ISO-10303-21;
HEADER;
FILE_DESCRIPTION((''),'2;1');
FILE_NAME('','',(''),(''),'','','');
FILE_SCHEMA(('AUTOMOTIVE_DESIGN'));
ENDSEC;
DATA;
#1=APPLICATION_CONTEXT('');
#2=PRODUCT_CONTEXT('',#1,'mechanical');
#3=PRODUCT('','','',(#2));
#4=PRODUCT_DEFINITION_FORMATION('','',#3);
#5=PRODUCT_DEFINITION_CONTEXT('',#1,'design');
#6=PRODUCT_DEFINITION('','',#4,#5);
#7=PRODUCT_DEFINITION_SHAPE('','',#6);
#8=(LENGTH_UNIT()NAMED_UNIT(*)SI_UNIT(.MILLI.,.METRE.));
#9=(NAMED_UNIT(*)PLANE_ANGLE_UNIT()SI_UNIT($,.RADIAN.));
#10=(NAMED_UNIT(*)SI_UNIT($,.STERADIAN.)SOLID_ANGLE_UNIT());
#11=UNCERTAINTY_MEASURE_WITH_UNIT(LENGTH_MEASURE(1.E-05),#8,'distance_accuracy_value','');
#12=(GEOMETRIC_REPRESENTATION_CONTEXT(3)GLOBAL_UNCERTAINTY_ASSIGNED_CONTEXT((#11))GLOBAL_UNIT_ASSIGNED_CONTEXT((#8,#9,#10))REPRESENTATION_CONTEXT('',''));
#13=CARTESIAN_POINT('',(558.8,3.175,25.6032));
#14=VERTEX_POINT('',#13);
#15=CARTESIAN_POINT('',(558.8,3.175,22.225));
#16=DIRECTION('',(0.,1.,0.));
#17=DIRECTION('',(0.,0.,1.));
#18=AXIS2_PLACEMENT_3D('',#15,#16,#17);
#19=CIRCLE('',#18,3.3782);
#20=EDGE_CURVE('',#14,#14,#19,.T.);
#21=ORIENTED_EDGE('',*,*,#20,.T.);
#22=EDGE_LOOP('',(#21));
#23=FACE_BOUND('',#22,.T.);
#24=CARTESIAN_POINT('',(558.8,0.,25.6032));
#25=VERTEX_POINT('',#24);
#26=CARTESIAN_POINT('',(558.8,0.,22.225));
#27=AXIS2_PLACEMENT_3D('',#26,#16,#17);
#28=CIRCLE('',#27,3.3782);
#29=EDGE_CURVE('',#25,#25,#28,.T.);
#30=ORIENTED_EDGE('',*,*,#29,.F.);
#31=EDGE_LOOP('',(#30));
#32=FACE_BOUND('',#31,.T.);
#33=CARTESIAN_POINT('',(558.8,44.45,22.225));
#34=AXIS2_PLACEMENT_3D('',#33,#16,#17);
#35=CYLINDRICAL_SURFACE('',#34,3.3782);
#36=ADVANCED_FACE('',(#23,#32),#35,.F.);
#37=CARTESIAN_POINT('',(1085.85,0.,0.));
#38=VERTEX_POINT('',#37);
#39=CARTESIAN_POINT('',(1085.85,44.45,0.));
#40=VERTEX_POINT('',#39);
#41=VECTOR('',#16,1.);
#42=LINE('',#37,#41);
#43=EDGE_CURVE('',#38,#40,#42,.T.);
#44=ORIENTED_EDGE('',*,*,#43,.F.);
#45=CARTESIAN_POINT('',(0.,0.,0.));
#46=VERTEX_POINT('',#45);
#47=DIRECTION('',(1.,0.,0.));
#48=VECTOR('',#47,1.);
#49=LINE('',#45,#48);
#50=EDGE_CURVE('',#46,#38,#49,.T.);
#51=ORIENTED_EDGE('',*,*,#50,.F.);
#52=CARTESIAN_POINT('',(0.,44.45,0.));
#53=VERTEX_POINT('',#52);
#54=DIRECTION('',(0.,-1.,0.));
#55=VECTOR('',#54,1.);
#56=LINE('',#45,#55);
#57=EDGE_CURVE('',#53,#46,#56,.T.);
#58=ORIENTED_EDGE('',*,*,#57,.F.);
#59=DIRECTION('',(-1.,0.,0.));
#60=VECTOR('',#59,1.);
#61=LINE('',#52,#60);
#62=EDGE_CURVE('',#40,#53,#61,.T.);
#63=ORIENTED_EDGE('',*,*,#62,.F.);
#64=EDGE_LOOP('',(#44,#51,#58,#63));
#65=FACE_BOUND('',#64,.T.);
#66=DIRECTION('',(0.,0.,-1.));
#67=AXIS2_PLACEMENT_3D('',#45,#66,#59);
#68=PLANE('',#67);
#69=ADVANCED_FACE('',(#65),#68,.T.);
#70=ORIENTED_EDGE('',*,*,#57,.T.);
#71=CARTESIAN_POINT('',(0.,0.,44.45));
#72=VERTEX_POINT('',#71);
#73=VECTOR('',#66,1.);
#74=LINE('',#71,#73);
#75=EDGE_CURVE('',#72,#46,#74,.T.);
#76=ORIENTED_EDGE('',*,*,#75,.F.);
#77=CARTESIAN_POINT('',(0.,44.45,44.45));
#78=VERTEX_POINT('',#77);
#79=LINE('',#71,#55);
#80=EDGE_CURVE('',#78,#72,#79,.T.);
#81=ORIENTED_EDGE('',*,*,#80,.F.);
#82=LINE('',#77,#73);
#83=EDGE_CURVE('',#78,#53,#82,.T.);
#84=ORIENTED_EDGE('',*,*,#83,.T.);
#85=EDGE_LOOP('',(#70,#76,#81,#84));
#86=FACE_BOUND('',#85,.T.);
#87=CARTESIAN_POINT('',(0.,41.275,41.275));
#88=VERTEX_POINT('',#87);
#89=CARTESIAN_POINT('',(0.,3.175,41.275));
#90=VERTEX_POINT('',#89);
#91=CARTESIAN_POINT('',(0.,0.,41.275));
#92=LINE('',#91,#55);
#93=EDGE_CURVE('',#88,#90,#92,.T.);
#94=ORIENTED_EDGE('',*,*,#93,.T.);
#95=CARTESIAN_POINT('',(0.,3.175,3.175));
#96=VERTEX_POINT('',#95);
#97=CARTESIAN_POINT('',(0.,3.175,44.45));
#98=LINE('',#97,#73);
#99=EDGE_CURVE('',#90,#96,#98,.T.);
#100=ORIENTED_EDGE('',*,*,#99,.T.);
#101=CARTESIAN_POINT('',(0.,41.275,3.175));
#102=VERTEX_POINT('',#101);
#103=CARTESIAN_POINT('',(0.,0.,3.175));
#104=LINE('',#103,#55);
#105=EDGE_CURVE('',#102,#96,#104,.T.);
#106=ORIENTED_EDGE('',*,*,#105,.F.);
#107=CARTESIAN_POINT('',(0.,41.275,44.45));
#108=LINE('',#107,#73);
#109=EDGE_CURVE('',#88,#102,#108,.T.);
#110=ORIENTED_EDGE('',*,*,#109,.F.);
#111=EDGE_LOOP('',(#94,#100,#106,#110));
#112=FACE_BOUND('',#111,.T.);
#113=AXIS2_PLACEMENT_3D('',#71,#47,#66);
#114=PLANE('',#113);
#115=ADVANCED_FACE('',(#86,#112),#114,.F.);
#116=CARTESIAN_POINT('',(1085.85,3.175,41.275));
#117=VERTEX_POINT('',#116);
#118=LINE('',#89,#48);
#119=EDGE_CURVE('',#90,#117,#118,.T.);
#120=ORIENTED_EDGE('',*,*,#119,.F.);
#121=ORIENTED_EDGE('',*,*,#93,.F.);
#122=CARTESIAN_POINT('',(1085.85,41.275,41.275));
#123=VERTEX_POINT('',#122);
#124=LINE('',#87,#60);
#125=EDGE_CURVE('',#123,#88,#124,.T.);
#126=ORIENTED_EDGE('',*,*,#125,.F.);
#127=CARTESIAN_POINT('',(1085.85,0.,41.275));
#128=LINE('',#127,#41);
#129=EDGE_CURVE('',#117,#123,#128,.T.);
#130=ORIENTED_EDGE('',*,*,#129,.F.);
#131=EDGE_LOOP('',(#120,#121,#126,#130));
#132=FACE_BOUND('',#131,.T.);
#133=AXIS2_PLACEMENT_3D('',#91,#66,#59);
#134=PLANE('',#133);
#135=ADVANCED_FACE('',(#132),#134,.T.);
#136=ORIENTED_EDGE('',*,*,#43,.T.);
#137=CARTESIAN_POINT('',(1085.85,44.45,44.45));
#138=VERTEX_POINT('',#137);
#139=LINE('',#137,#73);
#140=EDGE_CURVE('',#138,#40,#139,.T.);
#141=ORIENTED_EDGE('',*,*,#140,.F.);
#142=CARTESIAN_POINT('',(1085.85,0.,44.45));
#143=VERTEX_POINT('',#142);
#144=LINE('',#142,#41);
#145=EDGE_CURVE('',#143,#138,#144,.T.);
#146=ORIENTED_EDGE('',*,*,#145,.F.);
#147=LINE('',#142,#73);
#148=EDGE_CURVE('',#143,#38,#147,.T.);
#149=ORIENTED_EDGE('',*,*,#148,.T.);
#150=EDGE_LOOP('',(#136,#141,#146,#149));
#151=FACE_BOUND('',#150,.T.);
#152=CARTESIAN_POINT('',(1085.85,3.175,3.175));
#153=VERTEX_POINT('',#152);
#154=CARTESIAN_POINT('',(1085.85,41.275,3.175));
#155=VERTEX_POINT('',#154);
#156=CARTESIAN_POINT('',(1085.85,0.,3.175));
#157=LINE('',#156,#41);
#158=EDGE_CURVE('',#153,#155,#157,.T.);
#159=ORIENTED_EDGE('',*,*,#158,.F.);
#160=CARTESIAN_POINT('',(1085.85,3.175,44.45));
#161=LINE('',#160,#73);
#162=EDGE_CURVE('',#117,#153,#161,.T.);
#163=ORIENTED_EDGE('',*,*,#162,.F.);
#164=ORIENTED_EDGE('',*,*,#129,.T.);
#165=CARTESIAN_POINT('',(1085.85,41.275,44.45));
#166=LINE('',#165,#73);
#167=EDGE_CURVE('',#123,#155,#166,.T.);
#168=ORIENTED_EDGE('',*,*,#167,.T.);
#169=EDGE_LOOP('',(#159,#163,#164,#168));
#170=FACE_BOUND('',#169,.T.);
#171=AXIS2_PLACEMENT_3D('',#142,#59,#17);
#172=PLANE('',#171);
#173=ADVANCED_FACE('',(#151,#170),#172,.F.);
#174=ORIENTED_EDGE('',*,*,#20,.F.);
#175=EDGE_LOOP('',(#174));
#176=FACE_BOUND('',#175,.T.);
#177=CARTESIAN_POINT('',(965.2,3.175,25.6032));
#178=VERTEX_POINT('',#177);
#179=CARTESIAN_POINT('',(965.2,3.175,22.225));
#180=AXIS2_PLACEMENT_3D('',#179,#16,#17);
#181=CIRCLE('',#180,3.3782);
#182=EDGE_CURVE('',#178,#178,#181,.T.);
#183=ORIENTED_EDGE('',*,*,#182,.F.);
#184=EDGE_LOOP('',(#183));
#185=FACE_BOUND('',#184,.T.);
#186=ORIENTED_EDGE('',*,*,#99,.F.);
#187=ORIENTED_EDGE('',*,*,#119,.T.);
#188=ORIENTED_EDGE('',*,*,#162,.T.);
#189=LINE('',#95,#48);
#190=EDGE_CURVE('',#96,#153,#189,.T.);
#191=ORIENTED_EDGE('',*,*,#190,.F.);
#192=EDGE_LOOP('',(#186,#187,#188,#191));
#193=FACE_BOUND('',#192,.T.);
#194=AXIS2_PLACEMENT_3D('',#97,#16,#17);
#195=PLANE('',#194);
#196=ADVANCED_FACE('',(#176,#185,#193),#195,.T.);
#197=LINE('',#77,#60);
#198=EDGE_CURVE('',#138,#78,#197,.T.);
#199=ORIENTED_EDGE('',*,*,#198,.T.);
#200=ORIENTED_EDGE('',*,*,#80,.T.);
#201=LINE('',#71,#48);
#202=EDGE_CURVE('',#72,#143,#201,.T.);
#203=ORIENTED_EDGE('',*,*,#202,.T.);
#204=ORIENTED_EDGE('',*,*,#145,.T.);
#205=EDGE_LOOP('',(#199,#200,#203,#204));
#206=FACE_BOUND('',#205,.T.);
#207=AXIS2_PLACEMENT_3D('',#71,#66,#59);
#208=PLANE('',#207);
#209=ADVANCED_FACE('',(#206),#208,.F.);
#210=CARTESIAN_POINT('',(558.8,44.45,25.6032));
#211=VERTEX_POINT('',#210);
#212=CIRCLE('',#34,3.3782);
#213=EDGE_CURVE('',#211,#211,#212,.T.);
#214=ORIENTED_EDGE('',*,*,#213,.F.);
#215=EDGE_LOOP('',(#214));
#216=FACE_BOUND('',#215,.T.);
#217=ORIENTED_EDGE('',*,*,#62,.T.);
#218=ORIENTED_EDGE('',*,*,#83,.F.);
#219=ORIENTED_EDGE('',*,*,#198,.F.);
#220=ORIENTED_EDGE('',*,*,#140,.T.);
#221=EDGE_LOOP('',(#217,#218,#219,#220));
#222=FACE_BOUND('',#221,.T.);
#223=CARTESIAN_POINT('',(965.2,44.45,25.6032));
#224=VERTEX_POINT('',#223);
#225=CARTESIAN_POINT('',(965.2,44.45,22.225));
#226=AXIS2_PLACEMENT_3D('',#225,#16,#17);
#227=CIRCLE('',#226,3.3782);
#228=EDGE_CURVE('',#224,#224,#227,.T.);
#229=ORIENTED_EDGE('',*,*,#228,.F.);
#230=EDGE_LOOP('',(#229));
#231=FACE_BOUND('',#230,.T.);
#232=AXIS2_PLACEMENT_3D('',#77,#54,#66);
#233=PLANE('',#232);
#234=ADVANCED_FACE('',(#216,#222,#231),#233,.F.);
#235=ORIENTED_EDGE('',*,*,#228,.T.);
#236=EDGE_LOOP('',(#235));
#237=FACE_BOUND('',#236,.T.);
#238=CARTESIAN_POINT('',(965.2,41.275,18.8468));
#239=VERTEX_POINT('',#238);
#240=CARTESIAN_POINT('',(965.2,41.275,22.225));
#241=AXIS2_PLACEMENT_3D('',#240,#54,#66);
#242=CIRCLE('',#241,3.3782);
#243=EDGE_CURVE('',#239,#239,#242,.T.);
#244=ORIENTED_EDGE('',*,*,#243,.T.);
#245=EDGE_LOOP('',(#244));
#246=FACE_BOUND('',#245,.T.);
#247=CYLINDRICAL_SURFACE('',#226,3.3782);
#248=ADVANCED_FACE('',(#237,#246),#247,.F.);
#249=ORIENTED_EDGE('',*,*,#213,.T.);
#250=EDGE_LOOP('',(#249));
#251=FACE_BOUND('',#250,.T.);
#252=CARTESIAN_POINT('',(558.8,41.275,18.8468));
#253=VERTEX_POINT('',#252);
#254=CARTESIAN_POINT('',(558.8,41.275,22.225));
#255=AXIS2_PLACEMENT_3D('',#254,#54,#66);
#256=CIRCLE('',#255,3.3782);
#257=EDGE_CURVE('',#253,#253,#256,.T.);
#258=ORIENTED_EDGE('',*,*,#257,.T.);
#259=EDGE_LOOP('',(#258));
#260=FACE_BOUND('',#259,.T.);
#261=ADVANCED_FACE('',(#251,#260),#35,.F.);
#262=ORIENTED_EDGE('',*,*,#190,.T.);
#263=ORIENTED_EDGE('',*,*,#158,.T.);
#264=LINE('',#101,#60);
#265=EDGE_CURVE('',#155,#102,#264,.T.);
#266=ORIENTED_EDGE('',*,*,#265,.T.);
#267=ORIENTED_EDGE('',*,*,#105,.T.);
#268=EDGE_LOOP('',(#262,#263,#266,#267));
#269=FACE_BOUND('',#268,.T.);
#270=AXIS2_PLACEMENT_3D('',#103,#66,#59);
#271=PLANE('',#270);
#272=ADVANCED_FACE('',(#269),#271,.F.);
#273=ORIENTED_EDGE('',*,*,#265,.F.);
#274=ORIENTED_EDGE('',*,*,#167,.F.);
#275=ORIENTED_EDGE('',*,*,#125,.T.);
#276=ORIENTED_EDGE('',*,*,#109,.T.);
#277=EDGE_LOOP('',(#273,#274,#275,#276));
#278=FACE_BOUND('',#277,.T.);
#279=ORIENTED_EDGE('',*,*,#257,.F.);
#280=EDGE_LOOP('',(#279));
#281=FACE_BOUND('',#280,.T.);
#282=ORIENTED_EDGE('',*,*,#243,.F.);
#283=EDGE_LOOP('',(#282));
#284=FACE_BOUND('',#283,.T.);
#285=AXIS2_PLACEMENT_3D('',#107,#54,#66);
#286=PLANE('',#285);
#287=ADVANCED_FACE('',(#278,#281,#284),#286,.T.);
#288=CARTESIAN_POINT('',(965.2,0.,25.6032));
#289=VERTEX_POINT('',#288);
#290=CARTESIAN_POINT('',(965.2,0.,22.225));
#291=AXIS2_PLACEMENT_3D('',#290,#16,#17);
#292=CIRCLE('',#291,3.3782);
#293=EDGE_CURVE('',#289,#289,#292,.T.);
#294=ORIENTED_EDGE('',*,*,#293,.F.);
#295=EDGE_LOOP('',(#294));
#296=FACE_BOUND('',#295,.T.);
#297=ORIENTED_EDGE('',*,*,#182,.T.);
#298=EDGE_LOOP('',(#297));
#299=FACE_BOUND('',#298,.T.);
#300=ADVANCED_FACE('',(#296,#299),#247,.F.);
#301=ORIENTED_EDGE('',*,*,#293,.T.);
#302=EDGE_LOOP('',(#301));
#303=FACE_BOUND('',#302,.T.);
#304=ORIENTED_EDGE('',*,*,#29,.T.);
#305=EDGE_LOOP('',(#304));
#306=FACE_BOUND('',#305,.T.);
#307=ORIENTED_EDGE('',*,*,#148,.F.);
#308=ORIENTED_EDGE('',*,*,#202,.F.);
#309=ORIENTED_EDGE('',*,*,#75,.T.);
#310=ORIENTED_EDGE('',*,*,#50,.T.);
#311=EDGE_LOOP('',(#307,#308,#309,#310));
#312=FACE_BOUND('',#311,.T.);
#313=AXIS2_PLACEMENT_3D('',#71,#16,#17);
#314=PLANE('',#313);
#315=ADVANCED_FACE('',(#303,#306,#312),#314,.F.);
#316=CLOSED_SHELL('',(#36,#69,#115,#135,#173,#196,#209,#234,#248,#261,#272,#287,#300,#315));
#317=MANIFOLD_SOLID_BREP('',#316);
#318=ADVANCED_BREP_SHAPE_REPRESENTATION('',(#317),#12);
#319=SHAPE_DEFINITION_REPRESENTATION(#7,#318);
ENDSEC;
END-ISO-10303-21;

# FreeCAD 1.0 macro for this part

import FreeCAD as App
import Part
import Sketcher

V = App.Vector
Q = App.Units.Quantity


def faces_at(feature, points):
    """Names of the faces that lie closest to the given points."""
    faces = feature.Shape.Faces
    near = lambda p: min(range(len(faces)), key=lambda i: faces[i].distToShape(Part.Vertex(*p))[0])
    return sorted({f"Face{near(p) + 1}" for p in points})

doc = App.newDocument("Part")
body = doc.addObject("PartDesign::Body", "Body")

# Sketch on XY plane
sketch1 = doc.addObject("Sketcher::SketchObject", "Sketch")
body.addObject(sketch1)
sketch1.AttachmentSupport = (doc.XY_Plane, [""])
sketch1.MapMode = "FlatFace"
sketch1.addGeometry(Part.LineSegment(V(0, 44, 0), V(0, 0, 0)), False)
sketch1.addGeometry(Part.LineSegment(V(0, 0, 0), V(1086, 0, 0)), False)
sketch1.addGeometry(Part.LineSegment(V(1086, 0, 0), V(1086, 44, 0)), False)
sketch1.addGeometry(Part.LineSegment(V(1086, 44, 0), V(0, 44, 0)), False)
sketch1.addConstraint(Sketcher.Constraint("Coincident", 0, 2, 1, 1))
sketch1.addConstraint(Sketcher.Constraint("Coincident", 1, 2, 2, 1))
sketch1.addConstraint(Sketcher.Constraint("Coincident", 2, 2, 3, 1))
sketch1.addConstraint(Sketcher.Constraint("Coincident", 3, 2, 0, 1))
sketch1.addConstraint(Sketcher.Constraint("Vertical", 0))
sketch1.addConstraint(Sketcher.Constraint("Horizontal", 1))
sketch1.addConstraint(Sketcher.Constraint("Vertical", 2))
sketch1.addConstraint(Sketcher.Constraint("Horizontal", 3))
sketch1.addConstraint(Sketcher.Constraint("Coincident", 0, 2, -1, 1))
sketch1.addConstraint(Sketcher.Constraint("DistanceX", 1, 1, 1, 2, Q("42.75 in")))
sketch1.addConstraint(Sketcher.Constraint("DistanceY", 0, 2, 0, 1, Q("1.75 in")))
pad1 = doc.addObject("PartDesign::Pad", "Pad")
body.addObject(pad1)
pad1.Profile = sketch1
pad1.Length = Q("1.75 in")
doc.recompute()

thickness = doc.addObject("PartDesign::Thickness", "Thickness")
body.addObject(thickness)
thickness.Base = (pad1, faces_at(pad1, [(1085.85, 22.225, 22.225), (0, 22.225, 22.225)]))
thickness.Value = Q("0.125 in")
thickness.Reversed = True
thickness.Join = "Intersection"

# Sketch on XZ plane
sketch2 = doc.addObject("Sketcher::SketchObject", "Sketch001")
body.addObject(sketch2)
sketch2.AttachmentSupport = (doc.XZ_Plane, [""])
sketch2.MapMode = "FlatFace"
sketch2.AttachmentOffset = App.Placement(V(0, 0, -1.75 * 25.4), App.Rotation())
sketch2.addGeometry(Part.Circle(V(965.2, 22.2, 0), V(0, 0, 1), 3.4), False)
sketch2.addGeometry(Part.Circle(V(558.8, 22.2, 0), V(0, 0, 1), 3.4), False)
sketch2.addConstraint(Sketcher.Constraint("Equal", 0, 1))
sketch2.addConstraint(Sketcher.Constraint("Horizontal", 0, 3, 1, 3))
sketch2.addConstraint(Sketcher.Constraint("Diameter", 0, Q("0.266 in")))
sketch2.addConstraint(Sketcher.Constraint("DistanceX", -1, 1, 0, 3, Q("38 in")))
sketch2.addConstraint(Sketcher.Constraint("DistanceX", -1, 1, 1, 3, Q("22 in")))
sketch2.addConstraint(Sketcher.Constraint("DistanceY", -1, 1, 0, 3, Q("0.875 in")))
doc.recompute()
hole = doc.addObject("PartDesign::Hole", "Hole")
body.addObject(hole)
hole.Profile = sketch2
hole.ThreadType = "None"
hole.Diameter = Q("0.266 in")
hole.DepthType = "ThroughAll"
hole.Reversed = True

doc.recompute()
